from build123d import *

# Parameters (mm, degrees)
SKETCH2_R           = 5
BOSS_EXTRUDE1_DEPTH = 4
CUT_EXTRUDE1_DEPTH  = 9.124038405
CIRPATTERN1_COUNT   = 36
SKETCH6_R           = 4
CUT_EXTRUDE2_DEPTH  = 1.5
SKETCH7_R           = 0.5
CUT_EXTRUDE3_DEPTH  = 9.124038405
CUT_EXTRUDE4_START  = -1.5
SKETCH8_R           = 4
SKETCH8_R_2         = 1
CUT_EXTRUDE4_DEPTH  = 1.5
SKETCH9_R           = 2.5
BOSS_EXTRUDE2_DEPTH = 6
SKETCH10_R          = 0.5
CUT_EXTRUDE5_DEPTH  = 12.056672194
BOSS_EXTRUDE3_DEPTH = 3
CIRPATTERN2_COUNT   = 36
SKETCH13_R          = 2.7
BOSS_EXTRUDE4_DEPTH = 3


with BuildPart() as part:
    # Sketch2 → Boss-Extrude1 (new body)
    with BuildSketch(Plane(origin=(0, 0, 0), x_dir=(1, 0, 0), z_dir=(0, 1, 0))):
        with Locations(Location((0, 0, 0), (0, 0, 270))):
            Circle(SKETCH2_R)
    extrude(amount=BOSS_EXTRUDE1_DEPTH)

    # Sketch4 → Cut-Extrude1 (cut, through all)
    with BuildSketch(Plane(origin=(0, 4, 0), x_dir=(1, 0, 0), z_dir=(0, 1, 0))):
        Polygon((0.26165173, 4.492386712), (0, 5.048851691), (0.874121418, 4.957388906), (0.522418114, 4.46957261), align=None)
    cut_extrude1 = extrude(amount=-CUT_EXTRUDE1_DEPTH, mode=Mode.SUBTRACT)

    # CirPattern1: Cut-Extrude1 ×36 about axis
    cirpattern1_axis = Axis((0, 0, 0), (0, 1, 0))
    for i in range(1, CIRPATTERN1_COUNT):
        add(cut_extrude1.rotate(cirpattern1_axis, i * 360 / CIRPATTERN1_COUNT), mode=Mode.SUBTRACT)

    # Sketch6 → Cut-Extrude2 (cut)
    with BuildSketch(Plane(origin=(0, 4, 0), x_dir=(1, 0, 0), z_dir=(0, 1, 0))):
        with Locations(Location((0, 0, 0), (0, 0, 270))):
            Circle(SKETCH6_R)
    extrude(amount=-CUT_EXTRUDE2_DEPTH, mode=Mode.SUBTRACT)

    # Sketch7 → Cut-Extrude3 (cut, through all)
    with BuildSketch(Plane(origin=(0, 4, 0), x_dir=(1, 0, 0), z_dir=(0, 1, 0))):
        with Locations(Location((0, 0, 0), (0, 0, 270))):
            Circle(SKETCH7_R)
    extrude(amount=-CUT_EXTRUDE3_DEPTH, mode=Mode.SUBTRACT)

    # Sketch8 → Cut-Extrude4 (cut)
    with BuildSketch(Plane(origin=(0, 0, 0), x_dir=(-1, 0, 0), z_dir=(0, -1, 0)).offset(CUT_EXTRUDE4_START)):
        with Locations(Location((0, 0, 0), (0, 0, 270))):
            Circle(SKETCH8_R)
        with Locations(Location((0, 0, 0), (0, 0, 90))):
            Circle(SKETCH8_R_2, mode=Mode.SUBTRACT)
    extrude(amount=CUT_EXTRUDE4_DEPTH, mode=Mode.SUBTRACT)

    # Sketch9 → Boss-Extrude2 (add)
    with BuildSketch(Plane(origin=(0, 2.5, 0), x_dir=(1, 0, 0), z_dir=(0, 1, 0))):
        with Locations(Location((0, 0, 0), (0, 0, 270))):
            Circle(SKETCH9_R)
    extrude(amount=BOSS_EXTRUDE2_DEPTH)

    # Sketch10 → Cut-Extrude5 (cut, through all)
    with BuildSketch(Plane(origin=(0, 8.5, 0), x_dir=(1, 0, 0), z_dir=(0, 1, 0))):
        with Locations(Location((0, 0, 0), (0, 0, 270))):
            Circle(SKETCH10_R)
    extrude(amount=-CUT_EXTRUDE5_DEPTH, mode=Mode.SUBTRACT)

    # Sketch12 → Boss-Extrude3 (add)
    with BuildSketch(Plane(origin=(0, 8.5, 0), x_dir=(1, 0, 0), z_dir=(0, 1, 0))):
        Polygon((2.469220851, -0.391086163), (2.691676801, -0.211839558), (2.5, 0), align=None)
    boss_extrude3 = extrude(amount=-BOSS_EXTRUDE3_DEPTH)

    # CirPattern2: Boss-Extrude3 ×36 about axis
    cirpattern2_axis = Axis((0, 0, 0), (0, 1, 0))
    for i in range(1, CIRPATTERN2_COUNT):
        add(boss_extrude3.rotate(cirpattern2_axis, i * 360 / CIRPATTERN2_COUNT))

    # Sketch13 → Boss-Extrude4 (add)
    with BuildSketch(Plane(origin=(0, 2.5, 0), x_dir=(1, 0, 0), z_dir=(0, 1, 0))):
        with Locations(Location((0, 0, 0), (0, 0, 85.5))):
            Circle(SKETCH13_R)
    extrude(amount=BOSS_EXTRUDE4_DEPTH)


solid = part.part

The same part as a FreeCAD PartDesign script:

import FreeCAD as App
import Part
import Sketcher

V = App.Vector
Q = App.Units.Quantity


def add_polygon(sketch, points):
    """Adds a closed chain of lines whose ends are joined by coincident constraints."""
    first, n = sketch.GeometryCount, len(points)
    for a, b in zip(points, points[1:] + points[:1]):
        sketch.addGeometry(Part.LineSegment(App.Vector(*a, 0), App.Vector(*b, 0)), False)
    for i in range(n):
        sketch.addConstraint(Sketcher.Constraint("Coincident", first + i, 2, first + (i + 1) % n, 1))

doc = App.newDocument("Part")
body = doc.addObject("PartDesign::Body", "Body")

sketch1 = doc.addObject("Sketcher::SketchObject", "Sketch")
body.addObject(sketch1)
sketch1.AttachmentSupport = (doc.XZ_Plane, [""])
sketch1.MapMode = "FlatFace"
sketch1.addGeometry(Part.Circle(V(0, 0, 0), V(0, 0, 1), 5), False)
sketch1.addConstraint(Sketcher.Constraint("Coincident", 0, 3, -1, 1))
sketch1.addConstraint(Sketcher.Constraint("Diameter", 0, 10.0))
pad1 = doc.addObject("PartDesign::Pad", "Pad")
body.addObject(pad1)
pad1.Profile = sketch1
pad1.Length = 4
pad1.Reversed = True

sketch2 = doc.addObject("Sketcher::SketchObject", "Sketch001")
body.addObject(sketch2)
sketch2.AttachmentSupport = (doc.XZ_Plane, [""])
sketch2.MapMode = "FlatFace"
sketch2.AttachmentOffset = App.Placement(V(0, 0, -4), App.Rotation())
add_polygon(sketch2, [(0, -5.048852), (0.261652, -4.492387), (0.522418, -4.469573), (0.874121, -4.957389)])
sketch2.addConstraint(Sketcher.Constraint("PointOnObject", 3, 2, -2))
sketch2.addConstraint(Sketcher.Constraint("Angle", 1, Q("5 deg")))
sketch2.addConstraint(Sketcher.Constraint("Distance", 0, 0.61491))
sketch2.addConstraint(Sketcher.Constraint("Distance", 2, 0.601382))
sketch2.addConstraint(Sketcher.Constraint("DistanceX", -1, 1, 0, 2, 0.261652))
sketch2.addConstraint(Sketcher.Constraint("DistanceX", -1, 1, 1, 2, 0.522418))
sketch2.addConstraint(Sketcher.Constraint("DistanceX", -1, 1, 2, 2, 0.874121))
sketch2.addConstraint(Sketcher.Constraint("DistanceY", 2, 2, -1, 1, 4.957389))
pocket1 = doc.addObject("PartDesign::Pocket", "Pocket")
body.addObject(pocket1)
pocket1.Profile = sketch2
pocket1.Type = "ThroughAll"
pocket1.Reversed = True
doc.recompute()

polarpattern = doc.addObject("PartDesign::PolarPattern", "PolarPattern")
body.addObject(polarpattern)
polarpattern.Originals = [pocket1]
polarpattern.Axis = (doc.Y_Axis, [""])
polarpattern.Angle = 360
polarpattern.Occurrences = 36
body.Tip = polarpattern

sketch3 = doc.addObject("Sketcher::SketchObject", "Sketch002")
body.addObject(sketch3)
sketch3.AttachmentSupport = (doc.XZ_Plane, [""])
sketch3.MapMode = "FlatFace"
sketch3.AttachmentOffset = App.Placement(V(0, 0, -4), App.Rotation())
sketch3.addGeometry(Part.Circle(V(0, 0, 0), V(0, 0, 1), 4), False)
sketch3.addConstraint(Sketcher.Constraint("Coincident", 0, 3, -1, 1))
sketch3.addConstraint(Sketcher.Constraint("Diameter", 0, 8.0))
pocket2 = doc.addObject("PartDesign::Pocket", "Pocket001")
body.addObject(pocket2)
pocket2.Profile = sketch3
pocket2.Length = 1.5
pocket2.Reversed = True

sketch4 = doc.addObject("Sketcher::SketchObject", "Sketch003")
body.addObject(sketch4)
sketch4.AttachmentSupport = (doc.XZ_Plane, [""])
sketch4.MapMode = "FlatFace"
sketch4.AttachmentOffset = App.Placement(V(0, 0, -4), App.Rotation())
sketch4.addGeometry(Part.Circle(V(0, 0, 0), V(0, 0, 1), 0.5), False)
sketch4.addConstraint(Sketcher.Constraint("Coincident", 0, 3, -1, 1))
sketch4.addConstraint(Sketcher.Constraint("Diameter", 0, 1.0))
pocket3 = doc.addObject("PartDesign::Pocket", "Pocket002")
body.addObject(pocket3)
pocket3.Profile = sketch4
pocket3.Type = "ThroughAll"
pocket3.Reversed = True

sketch5 = doc.addObject("Sketcher::SketchObject", "Sketch004")
body.addObject(sketch5)
sketch5.AttachmentSupport = (doc.XZ_Plane, [""])
sketch5.MapMode = "FlatFace"
sketch5.AttachmentOffset = App.Placement(V(0, 0, -1.5), App.Rotation())
sketch5.addGeometry(Part.Circle(V(0, 0, 0), V(0, 0, 1), 4), False)
sketch5.addGeometry(Part.Circle(V(0, 0, 0), V(0, 0, 1), 1), False)
sketch5.addConstraint(Sketcher.Constraint("Coincident", 0, 3, -1, 1))
sketch5.addConstraint(Sketcher.Constraint("Coincident", 1, 3, -1, 1))
sketch5.addConstraint(Sketcher.Constraint("Diameter", 0, 8.0))
sketch5.addConstraint(Sketcher.Constraint("Diameter", 1, 2.0))
pocket4 = doc.addObject("PartDesign::Pocket", "Pocket003")
body.addObject(pocket4)
pocket4.Profile = sketch5
pocket4.Length = 1.5
pocket4.Reversed = True

sketch6 = doc.addObject("Sketcher::SketchObject", "Sketch005")
body.addObject(sketch6)
sketch6.AttachmentSupport = (doc.XZ_Plane, [""])
sketch6.MapMode = "FlatFace"
sketch6.AttachmentOffset = App.Placement(V(0, 0, -2.5), App.Rotation())
sketch6.addGeometry(Part.Circle(V(0, 0, 0), V(0, 0, 1), 2.5), False)
sketch6.addConstraint(Sketcher.Constraint("Coincident", 0, 3, -1, 1))
sketch6.addConstraint(Sketcher.Constraint("Diameter", 0, 5.0))
pad2 = doc.addObject("PartDesign::Pad", "Pad001")
body.addObject(pad2)
pad2.Profile = sketch6
pad2.Length = 6
pad2.Reversed = True

sketch7 = doc.addObject("Sketcher::SketchObject", "Sketch006")
body.addObject(sketch7)
sketch7.AttachmentSupport = (doc.XZ_Plane, [""])
sketch7.MapMode = "FlatFace"
sketch7.AttachmentOffset = App.Placement(V(0, 0, -8.5), App.Rotation())
sketch7.addGeometry(Part.Circle(V(0, 0, 0), V(0, 0, 1), 0.5), False)
sketch7.addConstraint(Sketcher.Constraint("Coincident", 0, 3, -1, 1))
sketch7.addConstraint(Sketcher.Constraint("Diameter", 0, 1.0))
pocket5 = doc.addObject("PartDesign::Pocket", "Pocket004")
body.addObject(pocket5)
pocket5.Profile = sketch7
pocket5.Type = "ThroughAll"
pocket5.Reversed = True

sketch8 = doc.addObject("Sketcher::SketchObject", "Sketch007")
body.addObject(sketch8)
sketch8.AttachmentSupport = (doc.XZ_Plane, [""])
sketch8.MapMode = "FlatFace"
sketch8.AttachmentOffset = App.Placement(V(0, 0, -8.5), App.Rotation())
add_polygon(sketch8, [(2.469221, 0.391086), (2.691677, 0.21184), (2.5, 0)])
sketch8.addConstraint(Sketcher.Constraint("PointOnObject", 1, 2, -1))
sketch8.addConstraint(Sketcher.Constraint("Equal", 0, 1))
sketch8.addConstraint(Sketcher.Constraint("Angle", 2, Q("94.5 deg")))
sketch8.addConstraint(Sketcher.Constraint("DistanceX", -1, 1, 1, 2, 2.5))
sketch8.addConstraint(Sketcher.Constraint("DistanceY", -1, 1, 0, 2, 0.21184))
sketch8.addConstraint(Sketcher.Constraint("DistanceX", -1, 1, 2, 2, 2.469221))
pad3 = doc.addObject("PartDesign::Pad", "Pad002")
body.addObject(pad3)
pad3.Profile = sketch8
pad3.Length = 3
doc.recompute()

polarpattern2 = doc.addObject("PartDesign::PolarPattern", "PolarPattern001")
body.addObject(polarpattern2)
polarpattern2.Originals = [pad3]
polarpattern2.Axis = (doc.Y_Axis, [""])
polarpattern2.Angle = 360
polarpattern2.Occurrences = 36
body.Tip = polarpattern2

sketch9 = doc.addObject("Sketcher::SketchObject", "Sketch008")
body.addObject(sketch9)
sketch9.AttachmentSupport = (doc.XZ_Plane, [""])
sketch9.MapMode = "FlatFace"
sketch9.AttachmentOffset = App.Placement(V(0, 0, -2.5), App.Rotation())
sketch9.addGeometry(Part.Circle(V(0, 0, 0), V(0, 0, 1), 2.7), False)
sketch9.addConstraint(Sketcher.Constraint("Coincident", 0, 3, -1, 1))
sketch9.addConstraint(Sketcher.Constraint("Diameter", 0, 5.4))
pad4 = doc.addObject("PartDesign::Pad", "Pad003")
body.addObject(pad4)
pad4.Profile = sketch9
pad4.Length = 3
pad4.Reversed = True

doc.recompute()
